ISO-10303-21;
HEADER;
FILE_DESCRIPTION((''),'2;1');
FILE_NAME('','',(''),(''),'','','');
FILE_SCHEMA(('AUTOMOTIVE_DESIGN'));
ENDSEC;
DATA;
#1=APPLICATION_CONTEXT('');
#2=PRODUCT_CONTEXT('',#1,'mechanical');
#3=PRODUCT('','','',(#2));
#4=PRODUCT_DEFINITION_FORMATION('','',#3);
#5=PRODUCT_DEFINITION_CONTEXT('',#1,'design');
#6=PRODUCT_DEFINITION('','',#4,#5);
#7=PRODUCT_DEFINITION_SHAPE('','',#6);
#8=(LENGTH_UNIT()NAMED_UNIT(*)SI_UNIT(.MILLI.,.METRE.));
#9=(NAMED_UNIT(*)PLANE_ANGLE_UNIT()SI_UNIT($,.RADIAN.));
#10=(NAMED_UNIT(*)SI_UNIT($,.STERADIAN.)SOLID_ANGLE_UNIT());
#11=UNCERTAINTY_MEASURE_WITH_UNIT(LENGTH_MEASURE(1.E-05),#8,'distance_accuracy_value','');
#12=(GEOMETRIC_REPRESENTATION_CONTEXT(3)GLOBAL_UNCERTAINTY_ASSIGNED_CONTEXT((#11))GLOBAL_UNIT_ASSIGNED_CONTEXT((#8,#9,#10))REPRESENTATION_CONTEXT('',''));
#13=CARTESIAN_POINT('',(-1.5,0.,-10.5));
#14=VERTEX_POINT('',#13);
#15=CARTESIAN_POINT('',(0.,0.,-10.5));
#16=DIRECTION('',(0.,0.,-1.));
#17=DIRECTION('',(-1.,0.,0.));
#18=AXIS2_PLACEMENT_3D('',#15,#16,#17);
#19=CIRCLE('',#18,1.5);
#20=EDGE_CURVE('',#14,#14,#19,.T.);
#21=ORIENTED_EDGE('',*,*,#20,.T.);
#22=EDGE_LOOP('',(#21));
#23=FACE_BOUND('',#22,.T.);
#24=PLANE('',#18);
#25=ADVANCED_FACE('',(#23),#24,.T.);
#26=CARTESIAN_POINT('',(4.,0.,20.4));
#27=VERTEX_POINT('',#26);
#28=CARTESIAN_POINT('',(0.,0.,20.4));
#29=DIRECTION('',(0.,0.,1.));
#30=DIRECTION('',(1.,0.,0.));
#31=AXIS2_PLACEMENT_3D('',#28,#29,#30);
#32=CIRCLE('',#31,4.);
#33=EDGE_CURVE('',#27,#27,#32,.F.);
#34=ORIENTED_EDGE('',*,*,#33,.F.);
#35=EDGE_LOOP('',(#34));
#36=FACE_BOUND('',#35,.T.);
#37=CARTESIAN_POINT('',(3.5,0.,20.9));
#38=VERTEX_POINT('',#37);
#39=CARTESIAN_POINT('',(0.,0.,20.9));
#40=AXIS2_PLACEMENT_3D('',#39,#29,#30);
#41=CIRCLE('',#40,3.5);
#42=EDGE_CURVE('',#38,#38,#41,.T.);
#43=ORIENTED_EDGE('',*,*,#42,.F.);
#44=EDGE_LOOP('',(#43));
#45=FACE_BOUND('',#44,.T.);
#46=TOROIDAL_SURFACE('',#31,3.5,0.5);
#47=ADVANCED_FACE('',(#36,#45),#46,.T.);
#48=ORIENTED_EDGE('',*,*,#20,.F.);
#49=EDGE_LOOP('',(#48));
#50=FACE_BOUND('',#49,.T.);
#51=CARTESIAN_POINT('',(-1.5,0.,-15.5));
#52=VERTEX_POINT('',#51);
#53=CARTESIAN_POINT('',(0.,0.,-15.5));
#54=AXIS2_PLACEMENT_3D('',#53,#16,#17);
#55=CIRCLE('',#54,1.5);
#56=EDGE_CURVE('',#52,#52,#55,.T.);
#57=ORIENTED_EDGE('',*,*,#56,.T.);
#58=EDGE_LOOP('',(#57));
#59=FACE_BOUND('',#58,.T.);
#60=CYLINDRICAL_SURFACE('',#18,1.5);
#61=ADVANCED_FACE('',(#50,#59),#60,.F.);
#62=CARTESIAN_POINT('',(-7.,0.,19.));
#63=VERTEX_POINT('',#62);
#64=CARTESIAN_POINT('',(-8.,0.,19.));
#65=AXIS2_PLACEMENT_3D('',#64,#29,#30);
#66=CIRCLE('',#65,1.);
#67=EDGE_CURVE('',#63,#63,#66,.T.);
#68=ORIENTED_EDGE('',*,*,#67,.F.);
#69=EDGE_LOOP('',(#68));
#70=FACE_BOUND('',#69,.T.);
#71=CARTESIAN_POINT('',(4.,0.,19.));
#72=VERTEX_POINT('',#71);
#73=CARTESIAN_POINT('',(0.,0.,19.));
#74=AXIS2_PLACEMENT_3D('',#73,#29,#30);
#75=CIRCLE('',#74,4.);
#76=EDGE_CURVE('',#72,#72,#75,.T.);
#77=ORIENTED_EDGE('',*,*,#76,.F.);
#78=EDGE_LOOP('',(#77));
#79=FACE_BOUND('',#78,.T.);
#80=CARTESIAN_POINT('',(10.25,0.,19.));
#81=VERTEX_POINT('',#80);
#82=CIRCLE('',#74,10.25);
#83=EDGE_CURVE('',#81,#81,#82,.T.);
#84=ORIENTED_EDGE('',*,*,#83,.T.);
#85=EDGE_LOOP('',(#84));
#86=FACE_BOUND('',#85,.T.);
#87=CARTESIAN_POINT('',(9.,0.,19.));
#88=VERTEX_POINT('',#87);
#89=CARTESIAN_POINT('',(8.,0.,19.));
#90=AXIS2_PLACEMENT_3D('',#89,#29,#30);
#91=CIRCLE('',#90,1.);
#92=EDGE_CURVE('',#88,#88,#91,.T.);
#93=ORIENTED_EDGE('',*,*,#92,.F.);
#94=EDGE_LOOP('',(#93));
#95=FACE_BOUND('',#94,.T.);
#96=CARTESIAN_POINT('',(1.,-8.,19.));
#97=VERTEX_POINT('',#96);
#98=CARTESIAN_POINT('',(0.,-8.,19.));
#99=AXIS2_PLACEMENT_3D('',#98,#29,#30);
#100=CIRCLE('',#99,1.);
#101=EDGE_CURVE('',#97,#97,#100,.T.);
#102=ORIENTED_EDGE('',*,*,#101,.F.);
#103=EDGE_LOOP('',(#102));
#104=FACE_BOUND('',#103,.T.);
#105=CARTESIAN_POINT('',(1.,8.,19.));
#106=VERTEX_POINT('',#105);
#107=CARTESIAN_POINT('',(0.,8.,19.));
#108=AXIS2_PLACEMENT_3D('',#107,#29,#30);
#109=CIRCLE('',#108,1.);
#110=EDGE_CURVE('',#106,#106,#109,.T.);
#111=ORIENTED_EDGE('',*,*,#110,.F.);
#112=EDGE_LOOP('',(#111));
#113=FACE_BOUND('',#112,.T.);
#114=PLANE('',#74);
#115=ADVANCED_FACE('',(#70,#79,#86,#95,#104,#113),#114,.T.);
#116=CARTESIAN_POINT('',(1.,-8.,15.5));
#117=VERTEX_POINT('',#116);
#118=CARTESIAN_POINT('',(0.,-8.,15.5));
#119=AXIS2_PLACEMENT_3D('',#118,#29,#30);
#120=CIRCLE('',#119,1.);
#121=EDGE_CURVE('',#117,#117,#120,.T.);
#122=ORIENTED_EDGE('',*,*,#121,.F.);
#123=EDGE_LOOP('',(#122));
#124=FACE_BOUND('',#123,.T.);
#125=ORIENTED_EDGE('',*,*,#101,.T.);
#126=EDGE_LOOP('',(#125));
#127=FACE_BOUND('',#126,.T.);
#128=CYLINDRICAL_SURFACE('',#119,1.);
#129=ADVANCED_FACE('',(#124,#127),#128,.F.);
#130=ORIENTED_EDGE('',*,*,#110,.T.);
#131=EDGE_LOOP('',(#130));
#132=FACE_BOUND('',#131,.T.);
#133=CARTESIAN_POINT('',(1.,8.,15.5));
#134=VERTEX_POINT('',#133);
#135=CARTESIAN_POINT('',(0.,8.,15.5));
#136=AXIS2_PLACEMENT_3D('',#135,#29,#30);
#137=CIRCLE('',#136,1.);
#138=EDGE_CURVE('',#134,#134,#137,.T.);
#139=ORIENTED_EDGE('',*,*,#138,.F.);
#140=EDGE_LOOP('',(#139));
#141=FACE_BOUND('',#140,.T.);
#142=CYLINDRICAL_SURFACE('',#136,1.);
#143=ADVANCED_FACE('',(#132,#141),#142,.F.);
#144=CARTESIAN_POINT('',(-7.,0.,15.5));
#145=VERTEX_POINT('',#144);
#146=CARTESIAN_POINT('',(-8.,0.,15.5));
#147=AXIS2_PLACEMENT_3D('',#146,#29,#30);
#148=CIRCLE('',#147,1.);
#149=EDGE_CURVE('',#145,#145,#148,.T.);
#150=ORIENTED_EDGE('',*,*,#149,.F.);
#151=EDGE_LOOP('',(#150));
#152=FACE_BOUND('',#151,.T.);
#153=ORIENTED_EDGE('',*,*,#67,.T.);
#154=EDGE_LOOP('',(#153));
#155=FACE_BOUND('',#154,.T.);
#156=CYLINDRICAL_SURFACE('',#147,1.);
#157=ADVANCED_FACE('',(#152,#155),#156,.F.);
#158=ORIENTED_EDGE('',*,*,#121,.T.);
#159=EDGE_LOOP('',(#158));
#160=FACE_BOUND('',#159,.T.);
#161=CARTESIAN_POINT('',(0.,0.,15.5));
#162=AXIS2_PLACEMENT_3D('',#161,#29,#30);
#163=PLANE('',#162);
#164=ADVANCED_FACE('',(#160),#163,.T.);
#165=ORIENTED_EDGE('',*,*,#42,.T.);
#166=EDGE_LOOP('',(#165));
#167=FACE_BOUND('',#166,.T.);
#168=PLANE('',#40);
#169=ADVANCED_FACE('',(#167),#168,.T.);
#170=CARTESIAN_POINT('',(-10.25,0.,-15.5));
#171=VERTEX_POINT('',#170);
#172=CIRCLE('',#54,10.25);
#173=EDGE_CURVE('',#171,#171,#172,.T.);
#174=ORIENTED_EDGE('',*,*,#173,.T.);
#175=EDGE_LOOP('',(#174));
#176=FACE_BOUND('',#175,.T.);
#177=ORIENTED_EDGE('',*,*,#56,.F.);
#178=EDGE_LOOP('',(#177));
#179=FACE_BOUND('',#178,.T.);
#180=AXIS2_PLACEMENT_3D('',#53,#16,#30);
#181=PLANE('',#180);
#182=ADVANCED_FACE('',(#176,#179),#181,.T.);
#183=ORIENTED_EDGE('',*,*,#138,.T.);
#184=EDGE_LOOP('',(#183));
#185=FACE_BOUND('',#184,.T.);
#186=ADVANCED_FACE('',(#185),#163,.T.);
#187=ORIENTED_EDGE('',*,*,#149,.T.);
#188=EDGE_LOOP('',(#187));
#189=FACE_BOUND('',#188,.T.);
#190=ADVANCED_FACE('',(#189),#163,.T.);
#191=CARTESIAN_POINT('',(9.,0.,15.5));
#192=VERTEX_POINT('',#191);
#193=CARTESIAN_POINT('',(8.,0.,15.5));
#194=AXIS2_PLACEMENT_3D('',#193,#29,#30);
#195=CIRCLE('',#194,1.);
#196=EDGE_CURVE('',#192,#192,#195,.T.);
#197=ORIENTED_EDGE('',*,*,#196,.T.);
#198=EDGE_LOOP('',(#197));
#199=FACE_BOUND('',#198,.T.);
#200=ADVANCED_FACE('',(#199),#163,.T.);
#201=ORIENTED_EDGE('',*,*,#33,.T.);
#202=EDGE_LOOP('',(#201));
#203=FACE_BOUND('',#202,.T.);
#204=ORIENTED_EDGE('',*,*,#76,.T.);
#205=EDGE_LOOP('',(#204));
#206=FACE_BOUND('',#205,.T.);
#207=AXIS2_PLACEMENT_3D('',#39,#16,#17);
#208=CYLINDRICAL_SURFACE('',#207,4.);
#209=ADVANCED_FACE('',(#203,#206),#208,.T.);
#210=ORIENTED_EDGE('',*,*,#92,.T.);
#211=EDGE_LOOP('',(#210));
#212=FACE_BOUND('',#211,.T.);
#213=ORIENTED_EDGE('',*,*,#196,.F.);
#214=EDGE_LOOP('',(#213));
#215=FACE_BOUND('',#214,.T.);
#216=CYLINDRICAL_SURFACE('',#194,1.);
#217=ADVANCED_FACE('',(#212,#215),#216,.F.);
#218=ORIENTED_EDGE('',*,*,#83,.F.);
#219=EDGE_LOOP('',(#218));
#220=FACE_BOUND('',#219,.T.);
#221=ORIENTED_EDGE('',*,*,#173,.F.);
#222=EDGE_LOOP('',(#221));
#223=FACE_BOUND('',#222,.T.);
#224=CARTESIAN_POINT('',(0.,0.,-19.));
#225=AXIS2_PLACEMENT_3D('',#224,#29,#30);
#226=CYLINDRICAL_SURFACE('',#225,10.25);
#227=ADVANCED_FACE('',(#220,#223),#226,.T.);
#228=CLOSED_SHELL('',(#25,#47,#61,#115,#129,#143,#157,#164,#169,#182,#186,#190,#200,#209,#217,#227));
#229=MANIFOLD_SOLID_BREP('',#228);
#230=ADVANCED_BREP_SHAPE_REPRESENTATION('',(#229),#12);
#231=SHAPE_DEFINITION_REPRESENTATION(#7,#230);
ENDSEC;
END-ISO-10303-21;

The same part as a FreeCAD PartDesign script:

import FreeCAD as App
import Part
import Sketcher

V = App.Vector


def edges_at(feature, points):
    """Names of the edges that pass closest to the given points."""
    edges = feature.Shape.Edges
    near = lambda p: min(range(len(edges)), key=lambda i: edges[i].distToShape(Part.Vertex(*p))[0])
    return sorted({f"Edge{near(p) + 1}" for p in points})

doc = App.newDocument("Part")
body = doc.addObject("PartDesign::Body", "Body")

sketch1 = body.newObject("Sketcher::SketchObject", "Sketch")
sketch1.AttachmentSupport = (doc.getObject("XY_Plane"), [""])
sketch1.MapMode = "FlatFace"
sketch1.addGeometry(Part.Circle(V(0, 0, 0), V(0, 0, 1), 10), False)
sketch1.addConstraint([
    Sketcher.Constraint("Coincident", 0, 3, -1, 1),
    Sketcher.Constraint("Diameter", 0, 20.5),
])
pad1 = body.newObject("PartDesign::Pad", "Pad")
pad1.Profile = sketch1
pad1.Type = "TwoLengths"
pad1.Length = 19
pad1.Length2 = 19

sketch2 = body.newObject("Sketcher::SketchObject", "Sketch001")
sketch2.AttachmentSupport = (doc.getObject("XY_Plane"), [""])
sketch2.MapMode = "FlatFace"
sketch2.AttachmentOffset = App.Placement(V(0, 0, 19), App.Rotation())
sketch2.addGeometry(Part.Circle(V(0, 0, 0), V(0, 0, 1), 4), False)
sketch2.addConstraint([
    Sketcher.Constraint("Coincident", 0, 3, -1, 1),
    Sketcher.Constraint("Diameter", 0, 8.0),
])
pad2 = body.newObject("PartDesign::Pad", "Pad001")
pad2.Profile = sketch2
pad2.Length = 1.9

sketch3 = body.newObject("Sketcher::SketchObject", "Sketch002")
sketch3.AttachmentSupport = (doc.getObject("XY_Plane"), [""])
sketch3.MapMode = "FlatFace"
sketch3.AttachmentOffset = App.Placement(V(0, 0, -19), App.Rotation())
sketch3.addGeometry(Part.Circle(V(0, 0, 0), V(0, 0, 1), 4), False)
sketch3.addConstraint([
    Sketcher.Constraint("Coincident", 0, 3, -1, 1),
    Sketcher.Constraint("Diameter", 0, 8.0),
])
pad3 = body.newObject("PartDesign::Pad", "Pad002")
pad3.Profile = sketch3
pad3.Length = 1
pad3.Reversed = True

sketch4 = body.newObject("Sketcher::SketchObject", "Sketch003")
sketch4.AttachmentSupport = (doc.getObject("XY_Plane"), [""])
sketch4.MapMode = "FlatFace"
sketch4.AttachmentOffset = App.Placement(V(0, 0, 19), App.Rotation())
sketch4.addGeometry([
    Part.Circle(V(0, 8, 0), V(0, 0, 1), 1),
    Part.Circle(V(8, 0, 0), V(0, 0, 1), 1),
    Part.Circle(V(0, -8, 0), V(0, 0, 1), 1),
    Part.Circle(V(-8, 0, 0), V(0, 0, 1), 1),
], False)
sketch4.addConstraint([
    Sketcher.Constraint("Equal", 0, 1),
    Sketcher.Constraint("Equal", 1, 2),
    Sketcher.Constraint("Equal", 2, 3),
    Sketcher.Constraint("Symmetric", 0, 3, 2, 3, -1, 1),
    Sketcher.Constraint("Symmetric", 1, 3, 3, 3, -1, 1),
    Sketcher.Constraint("PointOnObject", 0, 3, -2),
    Sketcher.Constraint("PointOnObject", 1, 3, -1),
    Sketcher.Constraint("Diameter", 0, 2.0),
    Sketcher.Constraint("DistanceY", -1, 1, 0, 3, 8.0),
    Sketcher.Constraint("DistanceX", -1, 1, 1, 3, 8.0),
])
pocket1 = body.newObject("PartDesign::Pocket", "Pocket")
pocket1.Profile = sketch4
pocket1.Length = 3.5
doc.recompute()

fillet = body.newObject("PartDesign::Fillet", "Fillet")
fillet.Base = (pocket1, edges_at(pocket1, [(-4, 0, 20.9)]))
fillet.Radius = 0.5
doc.recompute()

mirrored = body.newObject("PartDesign::Mirrored", "Mirrored")
mirrored.Originals = [pocket1]
mirrored.MirrorPlane = (doc.getObject("XY_Plane"), [""])
body.Tip = mirrored

sketch5 = body.newObject("Sketcher::SketchObject", "Sketch004")
sketch5.AttachmentSupport = (doc.getObject("XY_Plane"), [""])
sketch5.MapMode = "FlatFace"
sketch5.AttachmentOffset = App.Placement(V(0, 0, -19), App.Rotation())
sketch5.addGeometry(Part.Circle(V(0, 0, 0), V(0, 0, 1), 10), False)
sketch5.addConstraint([
    Sketcher.Constraint("Coincident", 0, 3, -1, 1),
    Sketcher.Constraint("Diameter", 0, 20.5),
])
pocket2 = body.newObject("PartDesign::Pocket", "Pocket001")
pocket2.Profile = sketch5
pocket2.Type = "TwoLengths"
pocket2.Length = 5.5
pocket2.Length2 = 3.5

sketch6 = body.newObject("Sketcher::SketchObject", "Sketch005")
sketch6.AttachmentSupport = (doc.getObject("XY_Plane"), [""])
sketch6.MapMode = "FlatFace"
sketch6.AttachmentOffset = App.Placement(V(0, 0, -15.5), App.Rotation())
sketch6.addGeometry(Part.Circle(V(0, 0, 0), V(0, 0, 1), 1.5), False)
sketch6.addConstraint([
    Sketcher.Constraint("Coincident", 0, 3, -1, 1),
    Sketcher.Constraint("Diameter", 0, 3.0),
])
pocket3 = body.newObject("PartDesign::Pocket", "Pocket002")
pocket3.Profile = sketch6
pocket3.Length = 5
pocket3.Reversed = True

doc.recompute()
